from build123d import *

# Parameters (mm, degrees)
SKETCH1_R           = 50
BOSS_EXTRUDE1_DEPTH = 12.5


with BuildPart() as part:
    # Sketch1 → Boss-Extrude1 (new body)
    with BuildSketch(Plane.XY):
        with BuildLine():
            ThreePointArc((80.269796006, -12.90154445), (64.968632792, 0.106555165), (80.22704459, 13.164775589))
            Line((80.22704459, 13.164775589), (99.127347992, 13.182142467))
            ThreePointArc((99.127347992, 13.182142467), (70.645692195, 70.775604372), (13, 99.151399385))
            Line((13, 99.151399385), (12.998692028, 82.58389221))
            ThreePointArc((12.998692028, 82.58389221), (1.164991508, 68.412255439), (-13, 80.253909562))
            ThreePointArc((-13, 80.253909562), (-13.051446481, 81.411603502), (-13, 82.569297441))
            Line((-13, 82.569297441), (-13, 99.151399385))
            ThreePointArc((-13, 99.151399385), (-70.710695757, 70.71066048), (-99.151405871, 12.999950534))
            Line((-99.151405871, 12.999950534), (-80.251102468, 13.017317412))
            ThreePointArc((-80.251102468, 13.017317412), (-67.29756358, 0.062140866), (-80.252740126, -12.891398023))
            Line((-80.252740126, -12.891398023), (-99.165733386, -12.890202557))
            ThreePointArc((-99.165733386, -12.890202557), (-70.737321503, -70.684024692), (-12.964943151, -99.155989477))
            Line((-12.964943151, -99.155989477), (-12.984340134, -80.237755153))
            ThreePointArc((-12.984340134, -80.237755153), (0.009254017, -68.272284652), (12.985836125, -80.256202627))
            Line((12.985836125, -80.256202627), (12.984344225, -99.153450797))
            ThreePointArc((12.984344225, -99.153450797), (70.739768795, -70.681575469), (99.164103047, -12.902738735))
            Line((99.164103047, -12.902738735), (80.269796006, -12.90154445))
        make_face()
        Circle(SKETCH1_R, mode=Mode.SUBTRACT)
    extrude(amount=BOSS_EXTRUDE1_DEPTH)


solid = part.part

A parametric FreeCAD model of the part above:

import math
import FreeCAD as App
import Part
import Sketcher

V = App.Vector
Q = App.Units.Quantity

doc = App.newDocument("Part")
params = doc.addObject("Spreadsheet::Sheet", "Params")
for row, (alias, value) in enumerate([
    ("sketch1_diameter", "100 mm"),
    ("sketch1_radius", "100 mm"),
    ("pad1_length", "12.5 mm"),
], start=1):
    params.set(f"A{row}", alias)
    params.set(f"B{row}", "=" + value)
    params.setAlias(f"B{row}", alias)

body = doc.addObject("PartDesign::Body", "Body")

# Sketch on XY plane
sketch1 = body.newObject("Sketcher::SketchObject", "Sketch")
sketch1.AttachmentSupport = (doc.getObject("XY_Plane"), [""])
sketch1.MapMode = "FlatFace"
sketch1.addGeometry(Part.ArcOfCircle(Part.Circle(V(78.2, 0.1, 0), V(0, 0, 1), 13.2), math.radians(81), math.radians(279)), False)
sketch1.addGeometry(Part.LineSegment(V(80.2, 13.2, 0), V(99.1, 13.2, 0)), False)
sketch1.addGeometry(Part.ArcOfCircle(Part.Circle(V(0, 0, 0), V(0, 0, 1), 100), math.radians(8), math.radians(83)), False)
sketch1.addGeometry(Part.LineSegment(V(13, 99.2, 0), V(13, 82.6, 0)), False)
sketch1.addGeometry(Part.ArcOfCircle(Part.Circle(V(0, 81.4, 0), V(0, 0, 1), 13.1), math.radians(-175), math.radians(5)), False)
sketch1.addGeometry(Part.ArcOfCircle(Part.Circle(V(0, 81.4, 0), V(0, 0, 1), 13.1), math.radians(174.91), math.radians(185.09)), False)
sketch1.addGeometry(Part.LineSegment(V(-13, 82.6, 0), V(-13, 99.2, 0)), False)
sketch1.addGeometry(Part.ArcOfCircle(Part.Circle(V(0, 0, 0), V(0, 0, 1), 100), math.radians(97), math.radians(173)), False)
sketch1.addGeometry(Part.LineSegment(V(-99.2, 13, 0), V(-80.3, 13, 0)), False)
sketch1.addGeometry(Part.ArcOfCircle(Part.Circle(V(-80.3, 0.1, 0), V(0, 0, 1), 13), math.radians(-90), math.radians(90)), False)
sketch1.addGeometry(Part.LineSegment(V(-80.3, -12.9, 0), V(-99.2, -12.9, 0)), False)
sketch1.addGeometry(Part.ArcOfCircle(Part.Circle(V(0, 0, 0), V(0, 0, 1), 100), math.radians(-173), math.radians(-97)), False)
sketch1.addGeometry(Part.LineSegment(V(-13, -99.2, 0), V(-13, -80.2, 0)), False)
sketch1.addGeometry(Part.ArcOfCircle(Part.Circle(V(0, -81.3, 0), V(0, 0, 1), 13), math.radians(5), math.radians(175)), False)
sketch1.addGeometry(Part.LineSegment(V(13, -80.3, 0), V(13, -99.2, 0)), False)
sketch1.addGeometry(Part.ArcOfCircle(Part.Circle(V(0, 0, 0), V(0, 0, 1), 100), math.radians(-83), math.radians(-7)), False)
sketch1.addGeometry(Part.LineSegment(V(99.2, -12.9, 0), V(80.3, -12.9, 0)), False)
sketch1.addGeometry(Part.Circle(V(0, 0, 0), V(0, 0, 1), 50), False)
sketch1.addConstraint(Sketcher.Constraint("Coincident", 0, 1, 1, 1))
sketch1.addConstraint(Sketcher.Constraint("Coincident", 1, 2, 2, 1))
sketch1.addConstraint(Sketcher.Constraint("Coincident", 2, 2, 3, 1))
sketch1.addConstraint(Sketcher.Constraint("Coincident", 3, 2, 4, 2))
sketch1.addConstraint(Sketcher.Constraint("Tangent", 4, 1, 5, 2))
sketch1.addConstraint(Sketcher.Constraint("Coincident", 5, 1, 6, 1))
sketch1.addConstraint(Sketcher.Constraint("Coincident", 6, 2, 7, 1))
sketch1.addConstraint(Sketcher.Constraint("Coincident", 7, 2, 8, 1))
sketch1.addConstraint(Sketcher.Constraint("Coincident", 8, 2, 9, 2))
sketch1.addConstraint(Sketcher.Constraint("Tangent", 9, 1, 10, 1))
sketch1.addConstraint(Sketcher.Constraint("Coincident", 10, 2, 11, 1))
sketch1.addConstraint(Sketcher.Constraint("Coincident", 11, 2, 12, 1))
sketch1.addConstraint(Sketcher.Constraint("Coincident", 12, 2, 13, 2))
sketch1.addConstraint(Sketcher.Constraint("Coincident", 13, 1, 14, 1))
sketch1.addConstraint(Sketcher.Constraint("Coincident", 14, 2, 15, 1))
sketch1.addConstraint(Sketcher.Constraint("Coincident", 15, 2, 16, 1))
sketch1.addConstraint(Sketcher.Constraint("Coincident", 16, 2, 0, 2))
sketch1.addConstraint(Sketcher.Constraint("Vertical", 6))
sketch1.addConstraint(Sketcher.Constraint("Coincident", 2, 3, -1, 1))
sketch1.addConstraint(Sketcher.Constraint("Coincident", 7, 3, -1, 1))
sketch1.addConstraint(Sketcher.Constraint("Coincident", 11, 3, -1, 1))
sketch1.addConstraint(Sketcher.Constraint("Coincident", 15, 3, -1, 1))
sketch1.addConstraint(Sketcher.Constraint("Coincident", 17, 3, -1, 1))
sketch1.addConstraint(Sketcher.Constraint("Equal", 4, 5))
sketch1.addConstraint(Sketcher.Constraint("Equal", 2, 7))
sketch1.addConstraint(Sketcher.Constraint("Equal", 7, 11))
sketch1.addConstraint(Sketcher.Constraint("Equal", 11, 15))
sketch1.addConstraint(Sketcher.Constraint("PointOnObject", 4, 3, -2))
sketch1.addConstraint(Sketcher.Constraint("PointOnObject", 13, 3, -2))
sketch1.addConstraint(Sketcher.Constraint("Parallel", 1, 8))
sketch1.addConstraint(Sketcher.Constraint("Parallel", 3, 14))
sketch1.addConstraint(Sketcher.Constraint("Parallel", 10, 16))
sketch1.addConstraint(Sketcher.Constraint("Horizontal", 2, 2, 6, 2))
sketch1.addConstraint(Sketcher.Constraint("Vertical", 4, 1, 5, 1))
sketch1.addConstraint(Sketcher.Constraint("Equal", 1, 8))
sketch1.addConstraint(Sketcher.Constraint("Diameter", 17, Q("100 mm")))
sketch1.addConstraint(Sketcher.Constraint("Radius", 2, Q("100 mm")))
sketch1.addConstraint(Sketcher.Constraint("DistanceX", -1, 1, 2, 2, Q("13 mm")))
sketch1.addConstraint(Sketcher.Constraint("DistanceY", 13, 3, -1, 1, Q("81.3 mm")))
sketch1.addConstraint(Sketcher.Constraint("Radius", 0, Q("13.198342 mm")))
sketch1.addConstraint(Sketcher.Constraint("Radius", 13, Q("13.027719 mm")))
sketch1.addConstraint(Sketcher.Constraint("DistanceY", 6, 1, 6, 2, Q("16.582102 mm")))
sketch1.addConstraint(Sketcher.Constraint("Radius", 4, Q("13.051446 mm")))
sketch1.addConstraint(Sketcher.Constraint("Radius", 9, Q("12.954358 mm")))
sketch1.addConstraint(Sketcher.Constraint("DistanceY", -1, 1, 0, 3, Q("0.128202 mm")))
sketch1.addConstraint(Sketcher.Constraint("DistanceY", 9, 1, -1, 1, Q("12.891398 mm")))
sketch1.addConstraint(Sketcher.Constraint("Distance", 1, Q("18.900311 mm")))
sketch1.addConstraint(Sketcher.Constraint("Distance", 14, Q("18.897248 mm")))
sketch1.addConstraint(Sketcher.Constraint("DistanceX", 9, 3, -1, 1, Q("80.251921 mm")))
sketch1.addConstraint(Sketcher.Constraint("DistanceY", -1, 1, 7, 2, Q("12.999951 mm")))
sketch1.addConstraint(Sketcher.Constraint("DistanceX", 9, 1, -1, 1, Q("80.25274 mm")))
sketch1.addConstraint(Sketcher.Constraint("DistanceY", 11, 2, -1, 1, Q("99.155989 mm")))
sketch1.addConstraint(Sketcher.Constraint("DistanceX", 12, 2, -1, 1, Q("12.98434 mm")))
sketch1.addConstraint(Sketcher.Constraint("DistanceY", 14, 2, -1, 1, Q("99.153451 mm")))
sketch1.addConstraint(Sketcher.Constraint("DistanceY", 15, 2, -1, 1, Q("12.902739 mm")))
sketch1.addConstraint(Sketcher.Constraint("DistanceX", 0, 3, 1, 2, Q("20.960391 mm")))
sketch1.setExpression("Constraints[35]", "Params.sketch1_diameter")
sketch1.setExpression("Constraints[36]", "Params.sketch1_radius")
pad1 = body.newObject("PartDesign::Pad", "Pad")
pad1.Profile = sketch1
pad1.setExpression("Length", "Params.pad1_length")

doc.recompute()
